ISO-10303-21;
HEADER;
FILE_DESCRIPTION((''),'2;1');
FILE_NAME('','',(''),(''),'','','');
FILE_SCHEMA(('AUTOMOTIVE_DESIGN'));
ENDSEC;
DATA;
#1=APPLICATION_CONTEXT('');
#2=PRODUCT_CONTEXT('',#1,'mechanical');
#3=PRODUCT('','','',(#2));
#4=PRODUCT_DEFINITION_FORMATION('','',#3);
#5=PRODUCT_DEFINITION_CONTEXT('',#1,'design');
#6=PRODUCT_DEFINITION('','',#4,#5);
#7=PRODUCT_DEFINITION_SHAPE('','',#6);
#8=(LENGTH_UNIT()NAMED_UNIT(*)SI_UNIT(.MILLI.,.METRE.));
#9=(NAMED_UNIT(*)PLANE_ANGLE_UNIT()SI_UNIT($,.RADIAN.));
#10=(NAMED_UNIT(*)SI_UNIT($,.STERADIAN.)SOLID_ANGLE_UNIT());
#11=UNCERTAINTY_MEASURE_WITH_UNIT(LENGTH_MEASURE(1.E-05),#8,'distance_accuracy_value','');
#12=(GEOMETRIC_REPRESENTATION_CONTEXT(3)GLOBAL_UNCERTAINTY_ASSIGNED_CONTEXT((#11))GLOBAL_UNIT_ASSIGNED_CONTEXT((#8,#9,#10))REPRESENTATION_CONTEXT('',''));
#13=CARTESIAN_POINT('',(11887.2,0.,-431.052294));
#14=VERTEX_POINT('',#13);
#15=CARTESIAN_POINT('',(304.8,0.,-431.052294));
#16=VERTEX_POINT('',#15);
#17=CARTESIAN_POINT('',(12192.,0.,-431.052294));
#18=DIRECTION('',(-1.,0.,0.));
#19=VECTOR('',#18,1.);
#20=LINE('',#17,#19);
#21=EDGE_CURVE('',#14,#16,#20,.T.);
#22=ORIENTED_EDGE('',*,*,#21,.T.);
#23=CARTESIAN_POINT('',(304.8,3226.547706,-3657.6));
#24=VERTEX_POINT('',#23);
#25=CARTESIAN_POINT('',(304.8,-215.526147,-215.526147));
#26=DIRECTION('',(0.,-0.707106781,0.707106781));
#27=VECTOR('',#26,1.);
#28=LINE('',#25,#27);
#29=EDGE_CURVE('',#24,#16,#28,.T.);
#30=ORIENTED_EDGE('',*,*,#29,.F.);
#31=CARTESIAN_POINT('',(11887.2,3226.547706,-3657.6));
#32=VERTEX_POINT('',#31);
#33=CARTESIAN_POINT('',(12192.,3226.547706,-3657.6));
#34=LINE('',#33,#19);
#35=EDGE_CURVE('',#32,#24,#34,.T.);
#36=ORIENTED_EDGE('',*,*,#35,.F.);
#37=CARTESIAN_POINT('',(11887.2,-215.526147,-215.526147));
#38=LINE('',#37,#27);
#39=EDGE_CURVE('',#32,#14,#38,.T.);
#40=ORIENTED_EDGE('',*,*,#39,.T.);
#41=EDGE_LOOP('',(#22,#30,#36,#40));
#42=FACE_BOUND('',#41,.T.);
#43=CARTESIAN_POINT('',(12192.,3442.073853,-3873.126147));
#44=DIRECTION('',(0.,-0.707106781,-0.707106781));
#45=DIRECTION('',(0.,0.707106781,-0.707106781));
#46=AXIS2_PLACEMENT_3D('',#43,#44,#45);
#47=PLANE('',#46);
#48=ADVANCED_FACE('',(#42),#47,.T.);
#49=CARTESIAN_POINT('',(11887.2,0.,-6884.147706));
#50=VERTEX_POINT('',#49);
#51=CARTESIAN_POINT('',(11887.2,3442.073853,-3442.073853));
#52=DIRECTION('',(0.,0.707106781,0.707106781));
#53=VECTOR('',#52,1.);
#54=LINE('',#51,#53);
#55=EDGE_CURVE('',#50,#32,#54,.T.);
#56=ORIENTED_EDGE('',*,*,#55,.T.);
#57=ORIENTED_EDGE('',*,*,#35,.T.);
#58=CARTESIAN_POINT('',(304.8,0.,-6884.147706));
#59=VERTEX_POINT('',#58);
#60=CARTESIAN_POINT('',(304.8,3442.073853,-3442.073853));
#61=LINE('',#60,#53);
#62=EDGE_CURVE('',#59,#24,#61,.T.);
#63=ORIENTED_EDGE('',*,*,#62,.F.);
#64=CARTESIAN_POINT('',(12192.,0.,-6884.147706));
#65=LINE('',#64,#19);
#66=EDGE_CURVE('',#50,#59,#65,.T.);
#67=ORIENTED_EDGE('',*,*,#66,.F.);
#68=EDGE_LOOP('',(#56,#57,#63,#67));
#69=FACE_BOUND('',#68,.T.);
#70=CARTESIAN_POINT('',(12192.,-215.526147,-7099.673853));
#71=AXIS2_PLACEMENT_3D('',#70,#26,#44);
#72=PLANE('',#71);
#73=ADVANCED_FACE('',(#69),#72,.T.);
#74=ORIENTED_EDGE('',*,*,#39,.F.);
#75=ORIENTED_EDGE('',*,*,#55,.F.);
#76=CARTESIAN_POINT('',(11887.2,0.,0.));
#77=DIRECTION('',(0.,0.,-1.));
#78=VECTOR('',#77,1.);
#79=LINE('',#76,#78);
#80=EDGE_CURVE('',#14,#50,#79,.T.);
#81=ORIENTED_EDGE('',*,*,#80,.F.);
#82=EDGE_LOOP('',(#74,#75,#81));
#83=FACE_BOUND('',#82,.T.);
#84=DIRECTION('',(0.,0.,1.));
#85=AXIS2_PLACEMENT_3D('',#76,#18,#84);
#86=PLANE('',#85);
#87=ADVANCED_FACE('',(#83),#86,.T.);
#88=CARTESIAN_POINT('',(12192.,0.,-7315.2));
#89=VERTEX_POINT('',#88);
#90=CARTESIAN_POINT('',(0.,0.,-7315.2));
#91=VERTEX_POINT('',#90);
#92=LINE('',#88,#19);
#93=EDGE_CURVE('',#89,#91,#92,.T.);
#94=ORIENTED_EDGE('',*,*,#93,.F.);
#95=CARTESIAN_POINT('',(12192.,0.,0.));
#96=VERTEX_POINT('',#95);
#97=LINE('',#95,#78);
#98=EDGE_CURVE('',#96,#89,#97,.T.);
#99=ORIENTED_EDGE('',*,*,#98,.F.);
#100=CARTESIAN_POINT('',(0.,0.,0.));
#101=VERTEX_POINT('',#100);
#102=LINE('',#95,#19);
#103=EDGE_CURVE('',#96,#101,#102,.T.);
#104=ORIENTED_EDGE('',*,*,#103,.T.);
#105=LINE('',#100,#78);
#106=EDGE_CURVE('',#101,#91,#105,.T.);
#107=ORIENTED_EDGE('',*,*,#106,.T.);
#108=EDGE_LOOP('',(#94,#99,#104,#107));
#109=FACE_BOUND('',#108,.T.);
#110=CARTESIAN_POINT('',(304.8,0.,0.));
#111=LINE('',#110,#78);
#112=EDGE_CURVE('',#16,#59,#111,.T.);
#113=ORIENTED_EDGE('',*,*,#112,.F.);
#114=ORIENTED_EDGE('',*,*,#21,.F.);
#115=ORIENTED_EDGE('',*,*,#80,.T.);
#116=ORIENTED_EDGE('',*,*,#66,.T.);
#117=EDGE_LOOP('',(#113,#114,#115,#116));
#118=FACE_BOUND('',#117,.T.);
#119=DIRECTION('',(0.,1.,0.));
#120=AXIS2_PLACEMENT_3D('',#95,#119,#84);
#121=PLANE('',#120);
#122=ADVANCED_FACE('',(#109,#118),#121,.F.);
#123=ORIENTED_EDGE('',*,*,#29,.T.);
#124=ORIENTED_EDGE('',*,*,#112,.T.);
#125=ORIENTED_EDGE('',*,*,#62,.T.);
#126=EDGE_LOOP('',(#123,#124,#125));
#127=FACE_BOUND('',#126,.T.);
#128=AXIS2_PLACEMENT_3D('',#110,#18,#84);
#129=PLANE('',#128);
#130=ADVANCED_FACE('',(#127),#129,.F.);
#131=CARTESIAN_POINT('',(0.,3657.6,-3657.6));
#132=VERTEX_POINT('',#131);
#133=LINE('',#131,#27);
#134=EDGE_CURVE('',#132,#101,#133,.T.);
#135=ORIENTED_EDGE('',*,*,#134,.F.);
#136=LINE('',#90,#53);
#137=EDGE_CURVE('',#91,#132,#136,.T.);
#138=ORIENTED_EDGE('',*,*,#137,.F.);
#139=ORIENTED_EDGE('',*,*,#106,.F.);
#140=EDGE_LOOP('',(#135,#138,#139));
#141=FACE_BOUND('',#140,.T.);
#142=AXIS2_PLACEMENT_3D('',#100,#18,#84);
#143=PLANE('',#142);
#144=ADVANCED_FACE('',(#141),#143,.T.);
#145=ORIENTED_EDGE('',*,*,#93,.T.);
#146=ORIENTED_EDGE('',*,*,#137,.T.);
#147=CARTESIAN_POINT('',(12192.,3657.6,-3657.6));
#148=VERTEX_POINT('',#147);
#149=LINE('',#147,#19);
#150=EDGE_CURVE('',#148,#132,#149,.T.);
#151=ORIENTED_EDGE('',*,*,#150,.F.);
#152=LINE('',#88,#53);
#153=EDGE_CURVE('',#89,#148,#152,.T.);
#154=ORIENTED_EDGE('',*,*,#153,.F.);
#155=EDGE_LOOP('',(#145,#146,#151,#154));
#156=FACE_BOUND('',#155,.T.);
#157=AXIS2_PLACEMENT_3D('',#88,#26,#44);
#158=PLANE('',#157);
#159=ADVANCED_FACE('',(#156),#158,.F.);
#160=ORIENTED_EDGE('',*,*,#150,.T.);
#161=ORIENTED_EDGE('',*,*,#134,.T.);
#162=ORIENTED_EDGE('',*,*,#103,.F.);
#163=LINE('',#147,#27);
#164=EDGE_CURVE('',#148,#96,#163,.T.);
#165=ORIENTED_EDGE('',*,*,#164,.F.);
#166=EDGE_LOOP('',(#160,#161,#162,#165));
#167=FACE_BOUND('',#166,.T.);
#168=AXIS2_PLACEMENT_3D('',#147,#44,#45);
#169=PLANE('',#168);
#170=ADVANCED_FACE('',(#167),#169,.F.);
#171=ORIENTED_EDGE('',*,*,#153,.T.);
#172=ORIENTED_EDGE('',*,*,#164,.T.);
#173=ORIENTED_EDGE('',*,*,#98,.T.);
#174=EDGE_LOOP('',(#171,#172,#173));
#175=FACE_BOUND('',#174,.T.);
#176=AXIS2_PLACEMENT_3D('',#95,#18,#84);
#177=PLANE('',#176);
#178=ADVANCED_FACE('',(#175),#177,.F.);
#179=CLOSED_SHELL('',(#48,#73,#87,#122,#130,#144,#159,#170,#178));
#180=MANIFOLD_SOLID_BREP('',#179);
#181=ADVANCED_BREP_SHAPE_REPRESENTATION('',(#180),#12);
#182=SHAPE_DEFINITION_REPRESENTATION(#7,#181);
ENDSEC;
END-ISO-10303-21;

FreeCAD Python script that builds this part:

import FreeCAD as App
import Part
import Sketcher
from FreeCAD import Vector
Q = App.Units.Quantity


def faces_at(feature, points):
    """Names of the faces that lie closest to the given points."""
    faces = feature.Shape.Faces
    near = lambda p: min(range(len(faces)), key=lambda i: faces[i].distToShape(Part.Vertex(*p))[0])
    return sorted({f"Face{near(p) + 1}" for p in points})

doc = App.newDocument("Part")
body = doc.addObject("PartDesign::Body", "Body")

# Sketch on YZ plane
sketch1 = doc.addObject("Sketcher::SketchObject", "Sketch")
body.addObject(sketch1)
sketch1.AttachmentSupport = (doc.YZ_Plane, [""])
sketch1.MapMode = "FlatFace"
sketch1.addGeometry([
    Part.LineSegment(Vector(0, 0, 0), Vector(0, -7315.2, 0)),
    Part.LineSegment(Vector(0, -7315.2, 0), Vector(3657.6, -3657.6, 0)),
    Part.LineSegment(Vector(3657.6, -3657.6, 0), Vector(0, 0, 0)),
], False)
sketch1.addConstraint([
    Sketcher.Constraint("Coincident", 0, 2, 1, 1),
    Sketcher.Constraint("Coincident", 1, 2, 2, 1),
    Sketcher.Constraint("Coincident", 2, 2, 0, 1),
    Sketcher.Constraint("Vertical", 0),
    Sketcher.Constraint("Coincident", 2, 2, -1, 1),
    Sketcher.Constraint("Perpendicular", 1, 2),
    Sketcher.Constraint("Equal", 1, 2),
    Sketcher.Constraint("DistanceY", 0, 2, 0, 1, Q("288 in")),
])
pad1 = doc.addObject("PartDesign::Pad", "Pad")
body.addObject(pad1)
pad1.Profile = sketch1
pad1.Length = Q("480 in")
doc.recompute()

thickness = doc.addObject("PartDesign::Thickness", "Thickness")
body.addObject(thickness)
thickness.Base = (pad1, faces_at(pad1, [(6096, 0, -3657.6)]))
thickness.Value = Q("12 in")
thickness.Reversed = True
thickness.Join = "Intersection"

doc.recompute()
